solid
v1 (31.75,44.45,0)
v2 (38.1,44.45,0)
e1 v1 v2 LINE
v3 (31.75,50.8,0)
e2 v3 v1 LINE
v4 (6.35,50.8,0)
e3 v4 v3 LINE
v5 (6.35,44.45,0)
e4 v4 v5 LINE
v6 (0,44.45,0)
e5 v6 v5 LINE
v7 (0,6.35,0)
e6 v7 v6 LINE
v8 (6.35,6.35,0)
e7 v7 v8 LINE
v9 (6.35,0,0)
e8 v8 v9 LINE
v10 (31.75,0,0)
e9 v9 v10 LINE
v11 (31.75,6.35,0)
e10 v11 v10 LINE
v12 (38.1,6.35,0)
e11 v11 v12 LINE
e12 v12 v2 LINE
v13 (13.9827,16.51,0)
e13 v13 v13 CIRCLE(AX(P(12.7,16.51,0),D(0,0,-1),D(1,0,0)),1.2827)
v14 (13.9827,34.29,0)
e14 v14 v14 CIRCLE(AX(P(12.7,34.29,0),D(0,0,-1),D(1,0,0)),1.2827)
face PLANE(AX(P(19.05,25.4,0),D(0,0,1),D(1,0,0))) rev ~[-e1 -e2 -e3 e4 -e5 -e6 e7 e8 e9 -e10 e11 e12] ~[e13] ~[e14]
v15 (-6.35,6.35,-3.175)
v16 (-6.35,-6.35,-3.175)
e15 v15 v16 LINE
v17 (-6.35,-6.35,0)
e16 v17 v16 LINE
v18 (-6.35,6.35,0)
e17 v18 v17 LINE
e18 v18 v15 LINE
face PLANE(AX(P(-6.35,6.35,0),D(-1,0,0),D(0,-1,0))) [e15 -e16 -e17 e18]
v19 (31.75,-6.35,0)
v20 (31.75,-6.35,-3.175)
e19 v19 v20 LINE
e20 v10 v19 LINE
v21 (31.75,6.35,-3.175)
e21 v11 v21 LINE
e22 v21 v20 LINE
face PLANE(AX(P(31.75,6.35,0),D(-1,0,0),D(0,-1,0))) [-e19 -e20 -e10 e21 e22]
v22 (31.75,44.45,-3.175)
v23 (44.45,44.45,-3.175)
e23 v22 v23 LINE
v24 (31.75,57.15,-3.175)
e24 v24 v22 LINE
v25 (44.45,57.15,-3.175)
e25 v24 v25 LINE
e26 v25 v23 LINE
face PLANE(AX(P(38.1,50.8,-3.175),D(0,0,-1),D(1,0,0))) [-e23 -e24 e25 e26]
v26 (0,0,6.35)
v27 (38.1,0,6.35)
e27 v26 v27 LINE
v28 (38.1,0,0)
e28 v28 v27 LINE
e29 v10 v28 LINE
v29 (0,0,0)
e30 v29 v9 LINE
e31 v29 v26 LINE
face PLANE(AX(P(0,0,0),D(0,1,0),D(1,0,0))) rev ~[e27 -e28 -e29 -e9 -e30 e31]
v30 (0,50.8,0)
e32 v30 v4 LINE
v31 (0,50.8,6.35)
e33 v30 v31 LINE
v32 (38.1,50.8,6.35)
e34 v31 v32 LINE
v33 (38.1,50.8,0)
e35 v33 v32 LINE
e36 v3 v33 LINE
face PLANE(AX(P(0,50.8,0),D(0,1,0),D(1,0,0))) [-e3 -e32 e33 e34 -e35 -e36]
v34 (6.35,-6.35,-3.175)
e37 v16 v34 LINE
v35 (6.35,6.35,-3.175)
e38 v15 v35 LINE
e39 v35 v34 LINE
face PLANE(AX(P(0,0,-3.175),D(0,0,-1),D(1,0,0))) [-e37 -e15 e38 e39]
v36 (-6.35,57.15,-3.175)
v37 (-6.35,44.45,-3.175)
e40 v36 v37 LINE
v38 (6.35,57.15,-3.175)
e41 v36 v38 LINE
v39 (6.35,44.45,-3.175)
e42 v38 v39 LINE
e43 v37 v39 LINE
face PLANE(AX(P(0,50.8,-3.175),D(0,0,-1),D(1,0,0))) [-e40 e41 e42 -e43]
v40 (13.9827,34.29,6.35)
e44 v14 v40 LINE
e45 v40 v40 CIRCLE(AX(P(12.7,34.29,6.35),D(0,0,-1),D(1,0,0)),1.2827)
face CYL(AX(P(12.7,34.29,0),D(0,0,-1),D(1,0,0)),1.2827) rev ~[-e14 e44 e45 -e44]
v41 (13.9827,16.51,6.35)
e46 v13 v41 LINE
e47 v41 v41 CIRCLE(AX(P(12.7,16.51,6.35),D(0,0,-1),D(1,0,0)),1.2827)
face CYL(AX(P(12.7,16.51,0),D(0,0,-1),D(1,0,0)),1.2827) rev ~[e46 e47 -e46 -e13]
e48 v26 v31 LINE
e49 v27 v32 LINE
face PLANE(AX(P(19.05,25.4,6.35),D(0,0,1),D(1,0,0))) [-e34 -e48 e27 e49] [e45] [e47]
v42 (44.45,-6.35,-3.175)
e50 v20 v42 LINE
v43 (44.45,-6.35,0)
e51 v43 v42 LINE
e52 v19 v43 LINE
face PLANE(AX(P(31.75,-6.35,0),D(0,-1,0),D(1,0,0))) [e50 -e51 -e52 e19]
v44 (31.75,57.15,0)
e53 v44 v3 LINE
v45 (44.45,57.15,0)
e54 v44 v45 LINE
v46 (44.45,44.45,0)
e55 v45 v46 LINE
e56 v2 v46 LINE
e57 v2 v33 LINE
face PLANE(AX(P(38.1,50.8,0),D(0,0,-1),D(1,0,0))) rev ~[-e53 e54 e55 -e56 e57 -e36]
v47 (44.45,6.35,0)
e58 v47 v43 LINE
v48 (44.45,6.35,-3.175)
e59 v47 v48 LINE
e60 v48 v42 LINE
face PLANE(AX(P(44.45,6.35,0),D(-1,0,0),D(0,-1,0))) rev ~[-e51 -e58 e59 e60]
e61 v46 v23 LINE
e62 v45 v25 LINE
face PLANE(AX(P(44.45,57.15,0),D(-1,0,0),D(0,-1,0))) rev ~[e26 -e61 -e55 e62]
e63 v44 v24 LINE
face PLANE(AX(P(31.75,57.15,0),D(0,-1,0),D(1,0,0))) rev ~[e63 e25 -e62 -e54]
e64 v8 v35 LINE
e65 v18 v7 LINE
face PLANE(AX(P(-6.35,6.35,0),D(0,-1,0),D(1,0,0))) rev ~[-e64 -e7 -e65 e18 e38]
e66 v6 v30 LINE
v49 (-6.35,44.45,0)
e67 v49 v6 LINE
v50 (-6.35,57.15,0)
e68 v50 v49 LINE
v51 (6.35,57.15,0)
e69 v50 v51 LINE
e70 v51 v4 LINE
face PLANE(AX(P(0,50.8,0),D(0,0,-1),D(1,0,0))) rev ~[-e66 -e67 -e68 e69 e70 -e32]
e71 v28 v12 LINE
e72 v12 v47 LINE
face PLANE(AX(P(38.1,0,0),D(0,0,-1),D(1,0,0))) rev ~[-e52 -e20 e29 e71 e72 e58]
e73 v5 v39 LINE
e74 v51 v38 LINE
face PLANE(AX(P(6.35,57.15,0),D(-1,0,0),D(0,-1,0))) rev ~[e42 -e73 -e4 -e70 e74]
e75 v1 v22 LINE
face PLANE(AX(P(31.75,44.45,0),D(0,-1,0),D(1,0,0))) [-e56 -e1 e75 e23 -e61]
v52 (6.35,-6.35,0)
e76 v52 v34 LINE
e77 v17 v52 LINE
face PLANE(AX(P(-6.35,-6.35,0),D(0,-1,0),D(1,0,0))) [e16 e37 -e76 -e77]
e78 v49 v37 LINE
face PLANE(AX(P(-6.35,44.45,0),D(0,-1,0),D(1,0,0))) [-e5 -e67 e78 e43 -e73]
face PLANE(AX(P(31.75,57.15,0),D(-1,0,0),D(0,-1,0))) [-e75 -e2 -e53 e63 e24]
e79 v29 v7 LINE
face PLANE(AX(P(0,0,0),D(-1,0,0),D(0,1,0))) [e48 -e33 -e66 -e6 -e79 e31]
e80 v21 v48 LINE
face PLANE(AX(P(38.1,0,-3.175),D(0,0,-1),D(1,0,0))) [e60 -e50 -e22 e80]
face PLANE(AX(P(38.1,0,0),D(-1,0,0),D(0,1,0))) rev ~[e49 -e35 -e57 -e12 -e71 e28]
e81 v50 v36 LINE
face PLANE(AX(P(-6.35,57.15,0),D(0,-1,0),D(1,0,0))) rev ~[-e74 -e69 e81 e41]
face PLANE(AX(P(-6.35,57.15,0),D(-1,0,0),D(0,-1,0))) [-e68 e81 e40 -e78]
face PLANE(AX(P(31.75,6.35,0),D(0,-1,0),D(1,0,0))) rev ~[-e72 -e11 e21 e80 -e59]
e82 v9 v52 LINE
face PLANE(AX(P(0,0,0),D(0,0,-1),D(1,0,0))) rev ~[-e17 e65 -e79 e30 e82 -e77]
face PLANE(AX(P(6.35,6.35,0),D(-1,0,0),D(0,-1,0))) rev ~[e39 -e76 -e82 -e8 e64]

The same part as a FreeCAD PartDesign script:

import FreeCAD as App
import Part
import Sketcher
from FreeCAD import Vector
Q = App.Units.Quantity

doc = App.newDocument("Part")
body = doc.addObject("PartDesign::Body", "Body")

# Sketch on XY plane
sketch1 = body.newObject("Sketcher::SketchObject", "Sketch")
sketch1.AttachmentSupport = (doc.getObject("XY_Plane"), [""])
sketch1.MapMode = "FlatFace"
sketch1.addGeometry([
    Part.LineSegment(Vector(0, 51, 0), Vector(0, 0, 0)),
    Part.LineSegment(Vector(0, 0, 0), Vector(38, 0, 0)),
    Part.LineSegment(Vector(38, 0, 0), Vector(38, 51, 0)),
    Part.LineSegment(Vector(38, 51, 0), Vector(0, 51, 0)),
], False)
sketch1.addConstraint([
    Sketcher.Constraint("Coincident", 0, 2, 1, 1),
    Sketcher.Constraint("Coincident", 1, 2, 2, 1),
    Sketcher.Constraint("Coincident", 2, 2, 3, 1),
    Sketcher.Constraint("Coincident", 3, 2, 0, 1),
    Sketcher.Constraint("Vertical", 0),
    Sketcher.Constraint("Horizontal", 1),
    Sketcher.Constraint("Vertical", 2),
    Sketcher.Constraint("Horizontal", 3),
    Sketcher.Constraint("Coincident", 0, 2, -1, 1),
    Sketcher.Constraint("DistanceY", 0, 2, 0, 1, Q("2 in")),
    Sketcher.Constraint("DistanceX", 1, 1, 1, 2, Q("1.5 in")),
])
pad1 = body.newObject("PartDesign::Pad", "Pad")
pad1.Profile = sketch1
pad1.Length = Q("0.25 in")

# Sketch on XY plane
sketch2 = body.newObject("Sketcher::SketchObject", "Sketch001")
sketch2.AttachmentSupport = (doc.getObject("XY_Plane"), [""])
sketch2.MapMode = "FlatFace"
sketch2.addGeometry([
    Part.LineSegment(Vector(-6, -6, 0), Vector(-6, 6, 0)),  # 0
    Part.LineSegment(Vector(-6, 6, 0), Vector(6, 6, 0)),  # 1
    Part.LineSegment(Vector(6, 6, 0), Vector(6, -6, 0)),  # 2
    Part.LineSegment(Vector(6, -6, 0), Vector(-6, -6, 0)),  # 3
    Part.LineSegment(Vector(32, -6, 0), Vector(32, 6, 0)),  # 4
    Part.LineSegment(Vector(32, 6, 0), Vector(44, 6, 0)),  # 5
    Part.LineSegment(Vector(44, 6, 0), Vector(44, -6, 0)),  # 6
    Part.LineSegment(Vector(44, -6, 0), Vector(32, -6, 0)),  # 7
    Part.LineSegment(Vector(-6, 44, 0), Vector(-6, 57, 0)),  # 8
    Part.LineSegment(Vector(-6, 57, 0), Vector(6, 57, 0)),  # 9
    Part.LineSegment(Vector(6, 57, 0), Vector(6, 44, 0)),  # 10
    Part.LineSegment(Vector(6, 44, 0), Vector(-6, 44, 0)),  # 11
    Part.LineSegment(Vector(32, 44, 0), Vector(32, 57, 0)),  # 12
    Part.LineSegment(Vector(32, 57, 0), Vector(44, 57, 0)),  # 13
    Part.LineSegment(Vector(44, 57, 0), Vector(44, 44, 0)),  # 14
    Part.LineSegment(Vector(44, 44, 0), Vector(32, 44, 0)),  # 15
], False)
sketch2.addConstraint([
    Sketcher.Constraint("Coincident", 0, 2, 1, 1),
    Sketcher.Constraint("Coincident", 1, 2, 2, 1),
    Sketcher.Constraint("Coincident", 2, 2, 3, 1),
    Sketcher.Constraint("Coincident", 3, 2, 0, 1),
    Sketcher.Constraint("Coincident", 4, 2, 5, 1),
    Sketcher.Constraint("Coincident", 5, 2, 6, 1),
    Sketcher.Constraint("Coincident", 6, 2, 7, 1),
    Sketcher.Constraint("Coincident", 7, 2, 4, 1),
    Sketcher.Constraint("Coincident", 8, 2, 9, 1),
    Sketcher.Constraint("Coincident", 9, 2, 10, 1),
    Sketcher.Constraint("Coincident", 10, 2, 11, 1),
    Sketcher.Constraint("Coincident", 11, 2, 8, 1),
    Sketcher.Constraint("Coincident", 12, 2, 13, 1),
    Sketcher.Constraint("Coincident", 13, 2, 14, 1),
    Sketcher.Constraint("Coincident", 14, 2, 15, 1),
    Sketcher.Constraint("Coincident", 15, 2, 12, 1),
    Sketcher.Constraint("Vertical", 0),
    Sketcher.Constraint("Horizontal", 1),
    Sketcher.Constraint("Vertical", 2),
    Sketcher.Constraint("Horizontal", 3),
    Sketcher.Constraint("Vertical", 4),
    Sketcher.Constraint("Horizontal", 5),
    Sketcher.Constraint("Vertical", 6),
    Sketcher.Constraint("Horizontal", 7),
    Sketcher.Constraint("Vertical", 8),
    Sketcher.Constraint("Horizontal", 9),
    Sketcher.Constraint("Vertical", 10),
    Sketcher.Constraint("Horizontal", 11),
    Sketcher.Constraint("Vertical", 12),
    Sketcher.Constraint("Horizontal", 13),
    Sketcher.Constraint("Vertical", 14),
    Sketcher.Constraint("Horizontal", 15),
    Sketcher.Constraint("Symmetric", 0, 2, 2, 2, -1, 1),
    Sketcher.Constraint("Horizontal", 1, 2, 4, 2),
    Sketcher.Constraint("Horizontal", 3, 2, 6, 2),
    Sketcher.Constraint("Horizontal", 9, 2, 12, 2),
    Sketcher.Constraint("Horizontal", 11, 2, 14, 2),
    Sketcher.Constraint("Vertical", 3, 2, 8, 2),
    Sketcher.Constraint("Vertical", 2, 2, 9, 2),
    Sketcher.Constraint("Vertical", 7, 2, 12, 2),
    Sketcher.Constraint("Vertical", 6, 2, 13, 2),
    Sketcher.Constraint("Equal", 3, 5),
    Sketcher.Constraint("Equal", 15, 0),
    Sketcher.Constraint("Equal", 6, 8),
    Sketcher.Constraint("DistanceX", 1, 1, 1, 2, Q("0.5 in")),
    Sketcher.Constraint("DistanceX", 1, 2, 4, 2, Q("1 in")),
    Sketcher.Constraint("DistanceY", 0, 2, 8, 2, Q("2 in")),
])
pad2 = body.newObject("PartDesign::Pad", "Pad001")
pad2.Profile = sketch2
pad2.Length = Q("0.125 in")
pad2.Reversed = True

# Sketch on XY plane
sketch3 = body.newObject("Sketcher::SketchObject", "Sketch002")
sketch3.AttachmentSupport = (doc.getObject("XY_Plane"), [""])
sketch3.MapMode = "FlatFace"
sketch3.addGeometry([
    Part.Circle(Vector(12.7, 16.5, 0), Vector(0, 0, 1), 1.3),
    Part.Circle(Vector(12.7, 34.3, 0), Vector(0, 0, 1), 1.3),
], False)
sketch3.addConstraint([
    Sketcher.Constraint("Equal", 0, 1),
    Sketcher.Constraint("Vertical", 0, 3, 1, 3),
    Sketcher.Constraint("Diameter", 0, Q("0.101 in")),
    Sketcher.Constraint("DistanceX", -1, 1, 0, 3, Q("0.5 in")),
    Sketcher.Constraint("DistanceY", 0, 3, 1, 3, Q("0.7 in")),
    Sketcher.Constraint("DistanceY", -1, 1, 0, 3, Q("0.65 in")),
])
pocket1 = body.newObject("PartDesign::Pocket", "Pocket")
pocket1.Profile = sketch3
pocket1.Length = Q("1 in")
pocket1.Reversed = True

doc.recompute()
